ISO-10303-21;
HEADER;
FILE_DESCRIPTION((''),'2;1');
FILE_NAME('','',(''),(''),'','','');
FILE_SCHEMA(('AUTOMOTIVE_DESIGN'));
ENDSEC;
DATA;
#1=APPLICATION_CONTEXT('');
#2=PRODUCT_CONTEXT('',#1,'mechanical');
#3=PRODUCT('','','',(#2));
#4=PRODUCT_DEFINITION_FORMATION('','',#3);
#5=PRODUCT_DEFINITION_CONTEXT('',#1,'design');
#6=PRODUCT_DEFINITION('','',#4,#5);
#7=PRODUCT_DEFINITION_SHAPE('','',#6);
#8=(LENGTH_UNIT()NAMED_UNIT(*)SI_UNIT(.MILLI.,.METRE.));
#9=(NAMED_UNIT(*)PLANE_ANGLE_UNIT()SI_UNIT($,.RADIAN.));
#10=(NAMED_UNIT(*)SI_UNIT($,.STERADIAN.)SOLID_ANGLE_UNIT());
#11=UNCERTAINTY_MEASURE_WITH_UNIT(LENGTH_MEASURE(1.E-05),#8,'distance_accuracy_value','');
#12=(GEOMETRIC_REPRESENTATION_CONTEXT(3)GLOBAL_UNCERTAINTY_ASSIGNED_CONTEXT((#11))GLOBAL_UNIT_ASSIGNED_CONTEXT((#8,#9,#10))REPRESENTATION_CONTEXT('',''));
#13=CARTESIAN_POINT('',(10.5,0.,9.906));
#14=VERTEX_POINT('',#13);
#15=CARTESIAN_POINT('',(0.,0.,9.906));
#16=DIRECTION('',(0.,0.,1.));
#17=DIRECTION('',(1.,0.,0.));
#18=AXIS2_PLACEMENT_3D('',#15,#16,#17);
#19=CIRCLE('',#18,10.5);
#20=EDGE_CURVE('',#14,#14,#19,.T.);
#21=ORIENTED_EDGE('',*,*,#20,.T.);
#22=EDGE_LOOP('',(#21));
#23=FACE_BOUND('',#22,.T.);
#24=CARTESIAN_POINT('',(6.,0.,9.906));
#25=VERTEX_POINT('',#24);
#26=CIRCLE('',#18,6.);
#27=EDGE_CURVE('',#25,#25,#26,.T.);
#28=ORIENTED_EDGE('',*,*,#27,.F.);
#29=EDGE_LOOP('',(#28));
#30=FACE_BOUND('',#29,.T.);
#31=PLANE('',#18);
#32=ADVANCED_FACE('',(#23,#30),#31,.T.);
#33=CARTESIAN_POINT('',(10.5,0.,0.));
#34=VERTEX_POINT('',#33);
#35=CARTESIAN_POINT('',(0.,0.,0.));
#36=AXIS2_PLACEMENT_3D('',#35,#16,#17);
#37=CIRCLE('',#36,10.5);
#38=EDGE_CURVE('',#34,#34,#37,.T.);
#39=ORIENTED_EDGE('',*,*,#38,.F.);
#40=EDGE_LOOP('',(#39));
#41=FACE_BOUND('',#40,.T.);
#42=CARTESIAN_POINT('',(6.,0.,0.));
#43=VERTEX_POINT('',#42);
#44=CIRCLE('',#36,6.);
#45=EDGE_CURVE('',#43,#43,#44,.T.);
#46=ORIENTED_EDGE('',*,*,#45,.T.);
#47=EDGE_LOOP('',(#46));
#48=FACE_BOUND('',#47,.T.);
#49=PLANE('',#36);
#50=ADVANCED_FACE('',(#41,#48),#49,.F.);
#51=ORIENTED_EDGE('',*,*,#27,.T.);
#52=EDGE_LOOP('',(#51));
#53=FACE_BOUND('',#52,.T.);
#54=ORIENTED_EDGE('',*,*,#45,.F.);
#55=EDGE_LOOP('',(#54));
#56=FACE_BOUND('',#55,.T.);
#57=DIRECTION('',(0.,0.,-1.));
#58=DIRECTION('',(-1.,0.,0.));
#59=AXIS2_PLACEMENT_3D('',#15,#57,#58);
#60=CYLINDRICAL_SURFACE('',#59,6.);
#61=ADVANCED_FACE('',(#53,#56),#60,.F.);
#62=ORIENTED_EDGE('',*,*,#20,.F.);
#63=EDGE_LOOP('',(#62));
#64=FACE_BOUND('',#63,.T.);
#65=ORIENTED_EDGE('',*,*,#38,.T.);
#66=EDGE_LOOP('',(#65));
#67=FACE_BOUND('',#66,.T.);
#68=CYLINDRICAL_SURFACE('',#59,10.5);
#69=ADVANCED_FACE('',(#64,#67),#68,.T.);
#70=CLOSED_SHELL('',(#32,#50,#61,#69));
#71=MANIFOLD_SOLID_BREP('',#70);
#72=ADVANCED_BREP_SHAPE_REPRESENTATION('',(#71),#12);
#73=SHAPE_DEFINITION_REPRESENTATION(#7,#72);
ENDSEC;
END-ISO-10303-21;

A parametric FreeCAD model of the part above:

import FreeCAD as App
import Part
import Sketcher

V = App.Vector
Q = App.Units.Quantity

doc = App.newDocument("Part")
body = doc.addObject("PartDesign::Body", "Body")

# Sketch on XY plane
sketch1 = body.newObject("Sketcher::SketchObject", "Sketch")
sketch1.AttachmentSupport = (doc.getObject("XY_Plane"), [""])
sketch1.MapMode = "FlatFace"
sketch1.addGeometry([
    Part.Circle(V(0, 0, 0), V(0, 0, 1), 10.5),
    Part.Circle(V(0, 0, 0), V(0, 0, 1), 6),
], False)
sketch1.addConstraint([
    Sketcher.Constraint("Coincident", 0, 3, -1, 1),
    Sketcher.Constraint("Coincident", 1, 3, -1, 1),
    Sketcher.Constraint("Diameter", 0, Q("21 mm")),
    Sketcher.Constraint("Diameter", 1, Q("12 mm")),
])
pad1 = body.newObject("PartDesign::Pad", "Pad")
pad1.Profile = sketch1
pad1.Length = 9.906

doc.recompute()
